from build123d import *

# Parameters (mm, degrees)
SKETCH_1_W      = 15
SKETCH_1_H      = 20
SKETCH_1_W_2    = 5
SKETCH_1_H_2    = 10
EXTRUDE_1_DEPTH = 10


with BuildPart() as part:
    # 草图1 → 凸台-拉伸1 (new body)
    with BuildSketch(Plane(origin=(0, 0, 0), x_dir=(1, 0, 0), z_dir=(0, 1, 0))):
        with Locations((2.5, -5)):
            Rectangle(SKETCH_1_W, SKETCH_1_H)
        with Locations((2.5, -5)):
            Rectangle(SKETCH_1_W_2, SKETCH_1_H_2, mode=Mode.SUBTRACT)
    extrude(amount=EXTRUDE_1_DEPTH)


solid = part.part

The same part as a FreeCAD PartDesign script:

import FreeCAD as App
import Part
import Sketcher

V = App.Vector

doc = App.newDocument("Part")
params = doc.addObject("Spreadsheet::Sheet", "Params")
for row, (alias, value) in enumerate([
    ("sketch1_width", "15 mm"),
    ("sketch1_width2", "5 mm"),
    ("sketch1_height", "20 mm"),
    ("sketch1_height2", "10 mm"),
    ("pad1_length", "10 mm"),
], start=1):
    params.set(f"A{row}", alias)
    params.set(f"B{row}", "=" + value)
    params.setAlias(f"B{row}", alias)

body = doc.addObject("PartDesign::Body", "Body")

# Sketch on XZ plane
sketch1 = body.newObject("Sketcher::SketchObject", "Sketch")
sketch1.AttachmentSupport = (doc.getObject("XZ_Plane"), [""])
sketch1.MapMode = "FlatFace"
sketch1.addGeometry(Part.LineSegment(V(-5, -5, 0), V(-5, 15, 0)), False)
sketch1.addGeometry(Part.LineSegment(V(-5, 15, 0), V(10, 15, 0)), False)
sketch1.addGeometry(Part.LineSegment(V(10, 15, 0), V(10, -5, 0)), False)
sketch1.addGeometry(Part.LineSegment(V(10, -5, 0), V(-5, -5, 0)), False)
sketch1.addGeometry(Part.LineSegment(V(5, 10, 0), V(0, 10, 0)), False)
sketch1.addGeometry(Part.LineSegment(V(0, 10, 0), V(0, 0, 0)), False)
sketch1.addGeometry(Part.LineSegment(V(0, 0, 0), V(5, 0, 0)), False)
sketch1.addGeometry(Part.LineSegment(V(5, 0, 0), V(5, 10, 0)), False)
sketch1.addConstraint(Sketcher.Constraint("Coincident", 0, 2, 1, 1))
sketch1.addConstraint(Sketcher.Constraint("Coincident", 1, 2, 2, 1))
sketch1.addConstraint(Sketcher.Constraint("Coincident", 2, 2, 3, 1))
sketch1.addConstraint(Sketcher.Constraint("Coincident", 3, 2, 0, 1))
sketch1.addConstraint(Sketcher.Constraint("Coincident", 4, 2, 5, 1))
sketch1.addConstraint(Sketcher.Constraint("Coincident", 5, 2, 6, 1))
sketch1.addConstraint(Sketcher.Constraint("Coincident", 6, 2, 7, 1))
sketch1.addConstraint(Sketcher.Constraint("Coincident", 7, 2, 4, 1))
sketch1.addConstraint(Sketcher.Constraint("Vertical", 0))
sketch1.addConstraint(Sketcher.Constraint("Horizontal", 1))
sketch1.addConstraint(Sketcher.Constraint("Vertical", 2))
sketch1.addConstraint(Sketcher.Constraint("Horizontal", 3))
sketch1.addConstraint(Sketcher.Constraint("Horizontal", 4))
sketch1.addConstraint(Sketcher.Constraint("Vertical", 5))
sketch1.addConstraint(Sketcher.Constraint("Horizontal", 6))
sketch1.addConstraint(Sketcher.Constraint("Vertical", 7))
sketch1.addConstraint(Sketcher.Constraint("Coincident", 5, 2, -1, 1))
sketch1.addConstraint(Sketcher.Constraint("DistanceX", 1, 1, 1, 2, 15.0))
sketch1.addConstraint(Sketcher.Constraint("DistanceX", 4, 2, 4, 1, 5.0))
sketch1.addConstraint(Sketcher.Constraint("DistanceY", 0, 1, 0, 2, 20.0))
sketch1.addConstraint(Sketcher.Constraint("DistanceY", 5, 2, 5, 1, 10.0))
sketch1.addConstraint(Sketcher.Constraint("DistanceX", 0, 2, -1, 1, 5.0))
sketch1.addConstraint(Sketcher.Constraint("DistanceY", -1, 1, 0, 2, 15.0))
sketch1.setExpression("Constraints[17]", "Params.sketch1_width")
sketch1.setExpression("Constraints[18]", "Params.sketch1_width2")
sketch1.setExpression("Constraints[19]", "Params.sketch1_height")
sketch1.setExpression("Constraints[20]", "Params.sketch1_height2")
pad1 = body.newObject("PartDesign::Pad", "Pad")
pad1.Profile = sketch1
pad1.setExpression("Length", "Params.pad1_length")
pad1.Reversed = True

doc.recompute()
